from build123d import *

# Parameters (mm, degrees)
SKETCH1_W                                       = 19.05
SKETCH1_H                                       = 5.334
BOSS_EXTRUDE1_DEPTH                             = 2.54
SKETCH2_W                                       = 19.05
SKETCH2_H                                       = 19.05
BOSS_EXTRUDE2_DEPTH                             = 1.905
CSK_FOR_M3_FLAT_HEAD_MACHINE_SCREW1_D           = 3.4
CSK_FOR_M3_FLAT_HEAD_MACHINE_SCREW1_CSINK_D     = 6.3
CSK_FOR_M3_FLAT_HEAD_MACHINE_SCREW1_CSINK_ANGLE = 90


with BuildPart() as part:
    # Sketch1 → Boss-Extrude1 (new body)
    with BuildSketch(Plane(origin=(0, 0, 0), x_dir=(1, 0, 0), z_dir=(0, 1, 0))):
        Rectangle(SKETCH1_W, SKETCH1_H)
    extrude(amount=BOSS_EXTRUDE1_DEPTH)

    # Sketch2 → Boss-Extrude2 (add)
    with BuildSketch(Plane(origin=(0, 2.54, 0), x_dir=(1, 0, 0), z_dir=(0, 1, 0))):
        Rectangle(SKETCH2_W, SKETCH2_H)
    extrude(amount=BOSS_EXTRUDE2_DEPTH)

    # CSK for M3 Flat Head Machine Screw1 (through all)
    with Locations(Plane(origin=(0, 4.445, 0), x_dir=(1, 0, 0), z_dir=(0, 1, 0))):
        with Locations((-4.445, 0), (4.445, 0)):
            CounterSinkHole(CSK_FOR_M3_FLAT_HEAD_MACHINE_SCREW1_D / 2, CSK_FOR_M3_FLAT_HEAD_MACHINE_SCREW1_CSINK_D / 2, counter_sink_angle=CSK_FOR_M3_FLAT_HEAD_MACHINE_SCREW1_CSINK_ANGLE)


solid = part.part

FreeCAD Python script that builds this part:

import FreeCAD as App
import Part
import Sketcher
Q = App.Units.Quantity


def add_polygon(sketch, points):
    """Adds a closed chain of lines whose ends are joined by coincident constraints."""
    first, n = sketch.GeometryCount, len(points)
    for a, b in zip(points, points[1:] + points[:1]):
        sketch.addGeometry(Part.LineSegment(App.Vector(*a, 0), App.Vector(*b, 0)), False)
    for i in range(n):
        sketch.addConstraint(Sketcher.Constraint("Coincident", first + i, 2, first + (i + 1) % n, 1))

doc = App.newDocument("Part")
params = doc.addObject("Spreadsheet::Sheet", "Params")
for row, (alias, value) in enumerate([
    ("sketch1_width", "0.75 in"),
    ("sketch1_height", "0.21 in"),
    ("pad1_length", "0.1 in"),
    ("sketch2_width", "0.75 in"),
    ("pad2_length", "0.075 in"),
    ("hole_diameter", "3.4 mm"),
    ("hole_csink_diameter", "6.3 mm"),
], start=1):
    params.set(f"A{row}", alias)
    params.set(f"B{row}", "=" + value)
    params.setAlias(f"B{row}", alias)

body = doc.addObject("PartDesign::Body", "Body")

# Sketch on XZ plane
sketch1 = body.newObject("Sketcher::SketchObject", "Sketch")
sketch1.AttachmentSupport = (doc.getObject("XZ_Plane"), [""])
sketch1.MapMode = "FlatFace"
add_polygon(sketch1, [(-9.525, -2.667), (-9.525, 2.667), (9.525, 2.667), (9.525, -2.667)])  # lines 0-3
sketch1.addConstraint([
    Sketcher.Constraint("Vertical", 0),
    Sketcher.Constraint("Horizontal", 1),
    Sketcher.Constraint("Vertical", 2),
    Sketcher.Constraint("Horizontal", 3),
    Sketcher.Constraint("Symmetric", 0, 2, 2, 2, -1, 1),
    Sketcher.Constraint("DistanceX", 1, 1, 1, 2, Q("0.75 in")),
    Sketcher.Constraint("DistanceY", 0, 1, 0, 2, Q("0.21 in")),
])
sketch1.setExpression("Constraints[9]", "Params.sketch1_width")
sketch1.setExpression("Constraints[10]", "Params.sketch1_height")
pad1 = body.newObject("PartDesign::Pad", "Pad")
pad1.Profile = sketch1
pad1.setExpression("Length", "Params.pad1_length")
pad1.Reversed = True

# Sketch on XZ plane
sketch2 = body.newObject("Sketcher::SketchObject", "Sketch001")
sketch2.AttachmentSupport = (doc.getObject("XZ_Plane"), [""])
sketch2.MapMode = "FlatFace"
sketch2.AttachmentOffset = App.Placement(App.Vector(0, 0, -0.1 * 25.4), App.Rotation())
add_polygon(sketch2, [(-9.525, -9.525), (-9.525, 9.525), (9.525, 9.525), (9.525, -9.525)])  # lines 0-3
sketch2.addConstraint([
    Sketcher.Constraint("Vertical", 0),
    Sketcher.Constraint("Horizontal", 1),
    Sketcher.Constraint("Vertical", 2),
    Sketcher.Constraint("Horizontal", 3),
    Sketcher.Constraint("Symmetric", 0, 2, 2, 2, -1, 1),
    Sketcher.Constraint("Equal", 3, 0),
    Sketcher.Constraint("DistanceX", 1, 1, 1, 2, Q("0.75 in")),
])
sketch2.setExpression("Constraints[10]", "Params.sketch2_width")
pad2 = body.newObject("PartDesign::Pad", "Pad001")
pad2.Profile = sketch2
pad2.setExpression("Length", "Params.pad2_length")
pad2.Reversed = True

# Sketch on XZ plane
sketch3 = body.newObject("Sketcher::SketchObject", "Sketch002")
sketch3.AttachmentSupport = (doc.getObject("XZ_Plane"), [""])
sketch3.MapMode = "FlatFace"
sketch3.AttachmentOffset = App.Placement(App.Vector(0, 0, -0.175 * 25.4), App.Rotation())
sketch3.addGeometry([
    Part.Circle(App.Vector(-4.445, 0, 0), App.Vector(0, 0, 1), 1.7),
    Part.Circle(App.Vector(4.445, 0, 0), App.Vector(0, 0, 1), 1.7),
], False)
sketch3.addConstraint([
    Sketcher.Constraint("Equal", 0, 1),
    Sketcher.Constraint("Symmetric", 0, 3, 1, 3, -1, 1),
    Sketcher.Constraint("PointOnObject", 0, 3, -1),
    Sketcher.Constraint("Diameter", 0, 3.4),
    Sketcher.Constraint("DistanceX", 0, 3, 1, 3, Q("0.35 in")),
])
doc.recompute()
hole = body.newObject("PartDesign::Hole", "Hole")
hole.Profile = sketch3
hole.ThreadType = "None"
hole.setExpression("Diameter", "Params.hole_diameter")
hole.DepthType = "ThroughAll"
hole.HoleCutType = "Countersink"
hole.setExpression("HoleCutDiameter", "Params.hole_csink_diameter")
hole.HoleCutCountersinkAngle = 90
hole.Reversed = True

doc.recompute()
